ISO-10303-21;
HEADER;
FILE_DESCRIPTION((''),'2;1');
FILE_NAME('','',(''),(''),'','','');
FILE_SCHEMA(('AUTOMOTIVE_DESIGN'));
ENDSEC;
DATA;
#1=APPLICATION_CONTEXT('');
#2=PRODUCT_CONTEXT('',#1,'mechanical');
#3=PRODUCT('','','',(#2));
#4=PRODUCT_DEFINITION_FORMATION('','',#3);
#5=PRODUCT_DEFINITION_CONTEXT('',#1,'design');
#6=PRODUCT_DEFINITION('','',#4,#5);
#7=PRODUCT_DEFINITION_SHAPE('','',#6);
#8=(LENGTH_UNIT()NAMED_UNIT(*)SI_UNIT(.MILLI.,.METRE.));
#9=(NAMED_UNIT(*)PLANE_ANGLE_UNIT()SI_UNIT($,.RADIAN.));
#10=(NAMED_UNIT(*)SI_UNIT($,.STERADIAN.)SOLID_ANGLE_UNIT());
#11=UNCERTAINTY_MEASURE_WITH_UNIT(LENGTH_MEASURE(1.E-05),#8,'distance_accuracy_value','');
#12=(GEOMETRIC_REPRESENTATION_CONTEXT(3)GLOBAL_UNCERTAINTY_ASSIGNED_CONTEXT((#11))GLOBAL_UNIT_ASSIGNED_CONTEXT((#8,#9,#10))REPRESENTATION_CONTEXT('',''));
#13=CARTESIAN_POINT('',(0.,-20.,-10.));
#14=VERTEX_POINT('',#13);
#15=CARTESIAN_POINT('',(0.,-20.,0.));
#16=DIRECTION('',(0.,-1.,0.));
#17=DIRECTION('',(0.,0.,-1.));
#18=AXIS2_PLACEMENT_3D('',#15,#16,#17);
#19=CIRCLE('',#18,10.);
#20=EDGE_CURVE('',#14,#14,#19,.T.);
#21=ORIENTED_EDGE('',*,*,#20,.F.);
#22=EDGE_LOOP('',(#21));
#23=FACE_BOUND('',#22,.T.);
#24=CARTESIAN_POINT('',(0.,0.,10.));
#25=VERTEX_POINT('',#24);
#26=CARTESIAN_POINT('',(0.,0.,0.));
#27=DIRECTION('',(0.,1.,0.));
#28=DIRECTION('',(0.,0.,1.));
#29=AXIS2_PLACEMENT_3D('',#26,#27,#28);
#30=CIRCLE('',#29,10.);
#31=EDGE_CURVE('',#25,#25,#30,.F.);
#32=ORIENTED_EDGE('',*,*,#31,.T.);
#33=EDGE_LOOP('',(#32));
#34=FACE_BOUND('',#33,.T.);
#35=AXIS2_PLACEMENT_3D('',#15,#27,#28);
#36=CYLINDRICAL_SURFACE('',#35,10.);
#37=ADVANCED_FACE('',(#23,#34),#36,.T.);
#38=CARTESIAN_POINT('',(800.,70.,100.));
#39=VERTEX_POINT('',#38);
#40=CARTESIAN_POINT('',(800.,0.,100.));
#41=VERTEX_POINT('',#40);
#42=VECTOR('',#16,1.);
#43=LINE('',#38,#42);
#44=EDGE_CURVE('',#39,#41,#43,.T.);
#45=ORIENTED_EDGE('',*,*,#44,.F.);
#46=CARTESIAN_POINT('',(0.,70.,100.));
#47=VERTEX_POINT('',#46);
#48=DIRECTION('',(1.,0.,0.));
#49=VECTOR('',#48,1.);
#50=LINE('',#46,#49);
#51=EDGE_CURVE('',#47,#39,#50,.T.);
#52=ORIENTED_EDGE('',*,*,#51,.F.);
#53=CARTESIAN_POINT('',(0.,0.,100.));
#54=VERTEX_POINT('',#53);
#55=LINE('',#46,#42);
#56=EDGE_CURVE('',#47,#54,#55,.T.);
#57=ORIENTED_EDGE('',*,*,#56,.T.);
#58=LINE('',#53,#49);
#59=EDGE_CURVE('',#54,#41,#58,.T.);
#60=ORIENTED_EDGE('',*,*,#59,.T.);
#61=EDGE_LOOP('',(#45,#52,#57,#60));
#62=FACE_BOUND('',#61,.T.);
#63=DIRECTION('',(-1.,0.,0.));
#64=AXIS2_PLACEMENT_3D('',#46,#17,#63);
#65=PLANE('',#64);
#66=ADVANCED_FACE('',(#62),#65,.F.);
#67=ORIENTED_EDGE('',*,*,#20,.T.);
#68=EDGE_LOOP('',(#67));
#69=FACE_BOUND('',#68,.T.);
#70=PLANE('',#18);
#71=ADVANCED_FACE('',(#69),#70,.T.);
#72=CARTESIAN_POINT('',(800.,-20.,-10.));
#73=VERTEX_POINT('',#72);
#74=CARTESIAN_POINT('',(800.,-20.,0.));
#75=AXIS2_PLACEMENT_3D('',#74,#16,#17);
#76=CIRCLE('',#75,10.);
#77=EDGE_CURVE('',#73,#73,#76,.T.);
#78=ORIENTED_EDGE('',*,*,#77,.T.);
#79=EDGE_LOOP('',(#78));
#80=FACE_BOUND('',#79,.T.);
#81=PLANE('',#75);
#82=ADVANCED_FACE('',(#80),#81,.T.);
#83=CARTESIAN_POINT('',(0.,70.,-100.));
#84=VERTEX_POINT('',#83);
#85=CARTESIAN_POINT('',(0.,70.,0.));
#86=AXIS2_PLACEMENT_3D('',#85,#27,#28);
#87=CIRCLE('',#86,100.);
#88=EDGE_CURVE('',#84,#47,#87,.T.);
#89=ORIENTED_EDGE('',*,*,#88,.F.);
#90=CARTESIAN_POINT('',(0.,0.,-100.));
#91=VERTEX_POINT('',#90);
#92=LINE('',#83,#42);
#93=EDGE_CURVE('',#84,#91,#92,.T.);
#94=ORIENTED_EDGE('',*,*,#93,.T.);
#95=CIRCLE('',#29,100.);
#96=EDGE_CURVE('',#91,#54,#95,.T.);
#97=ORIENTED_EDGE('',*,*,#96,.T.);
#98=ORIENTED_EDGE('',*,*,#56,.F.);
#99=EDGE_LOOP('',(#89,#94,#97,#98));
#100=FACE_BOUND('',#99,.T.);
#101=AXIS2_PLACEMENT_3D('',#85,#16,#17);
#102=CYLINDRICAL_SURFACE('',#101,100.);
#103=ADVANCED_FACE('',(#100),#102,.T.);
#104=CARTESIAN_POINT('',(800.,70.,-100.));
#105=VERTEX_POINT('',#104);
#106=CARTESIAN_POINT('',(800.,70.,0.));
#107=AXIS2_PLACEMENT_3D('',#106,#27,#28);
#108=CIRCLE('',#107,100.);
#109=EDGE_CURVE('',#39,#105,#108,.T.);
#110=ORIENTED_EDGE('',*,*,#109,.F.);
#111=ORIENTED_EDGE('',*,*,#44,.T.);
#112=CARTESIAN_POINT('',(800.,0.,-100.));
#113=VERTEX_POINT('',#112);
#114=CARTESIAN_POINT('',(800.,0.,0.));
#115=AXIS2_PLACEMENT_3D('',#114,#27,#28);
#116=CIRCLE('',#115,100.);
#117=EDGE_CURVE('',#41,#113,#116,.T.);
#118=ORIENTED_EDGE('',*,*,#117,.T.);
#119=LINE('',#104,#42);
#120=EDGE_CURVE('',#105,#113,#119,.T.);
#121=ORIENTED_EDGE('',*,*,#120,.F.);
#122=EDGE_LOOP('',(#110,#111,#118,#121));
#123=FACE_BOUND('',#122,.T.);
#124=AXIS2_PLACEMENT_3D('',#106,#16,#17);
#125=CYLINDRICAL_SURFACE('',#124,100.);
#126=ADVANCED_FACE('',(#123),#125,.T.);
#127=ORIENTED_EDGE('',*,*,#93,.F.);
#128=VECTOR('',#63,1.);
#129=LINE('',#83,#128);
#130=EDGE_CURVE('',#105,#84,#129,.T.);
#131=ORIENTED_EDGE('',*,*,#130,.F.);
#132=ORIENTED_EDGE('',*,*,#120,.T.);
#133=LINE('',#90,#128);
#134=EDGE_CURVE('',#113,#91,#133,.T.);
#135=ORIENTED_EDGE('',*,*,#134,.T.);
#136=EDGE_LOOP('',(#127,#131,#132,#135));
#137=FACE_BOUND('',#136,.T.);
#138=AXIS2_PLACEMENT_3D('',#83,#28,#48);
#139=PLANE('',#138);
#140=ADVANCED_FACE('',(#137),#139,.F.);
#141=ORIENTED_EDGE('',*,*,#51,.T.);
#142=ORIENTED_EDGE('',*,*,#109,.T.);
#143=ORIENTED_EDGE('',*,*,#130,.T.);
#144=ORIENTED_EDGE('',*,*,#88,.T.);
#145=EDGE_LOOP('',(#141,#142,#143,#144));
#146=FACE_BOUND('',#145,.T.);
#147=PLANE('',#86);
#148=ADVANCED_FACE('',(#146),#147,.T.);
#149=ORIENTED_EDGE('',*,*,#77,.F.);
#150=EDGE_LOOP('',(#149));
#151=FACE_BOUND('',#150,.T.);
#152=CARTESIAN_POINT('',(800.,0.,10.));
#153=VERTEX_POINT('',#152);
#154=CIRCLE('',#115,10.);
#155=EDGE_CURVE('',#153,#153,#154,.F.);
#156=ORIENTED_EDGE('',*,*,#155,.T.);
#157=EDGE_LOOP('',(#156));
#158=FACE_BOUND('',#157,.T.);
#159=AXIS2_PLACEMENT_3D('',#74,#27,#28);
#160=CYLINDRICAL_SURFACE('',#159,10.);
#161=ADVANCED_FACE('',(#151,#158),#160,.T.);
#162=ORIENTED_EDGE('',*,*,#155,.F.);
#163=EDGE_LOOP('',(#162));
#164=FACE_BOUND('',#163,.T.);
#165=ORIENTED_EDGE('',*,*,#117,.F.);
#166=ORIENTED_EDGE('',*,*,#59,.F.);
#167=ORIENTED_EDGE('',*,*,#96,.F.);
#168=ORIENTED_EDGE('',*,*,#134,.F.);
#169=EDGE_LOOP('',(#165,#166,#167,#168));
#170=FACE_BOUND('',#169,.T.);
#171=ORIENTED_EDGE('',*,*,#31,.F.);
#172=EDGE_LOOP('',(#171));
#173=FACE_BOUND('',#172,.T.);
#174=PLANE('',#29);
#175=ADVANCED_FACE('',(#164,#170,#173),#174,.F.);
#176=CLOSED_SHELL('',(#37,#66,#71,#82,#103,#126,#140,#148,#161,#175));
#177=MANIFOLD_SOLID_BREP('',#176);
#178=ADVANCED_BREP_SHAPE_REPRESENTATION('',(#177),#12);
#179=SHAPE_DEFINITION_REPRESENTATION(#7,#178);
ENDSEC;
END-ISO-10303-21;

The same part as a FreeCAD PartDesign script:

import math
import FreeCAD as App
import Part
import Sketcher

V = App.Vector

doc = App.newDocument("Part")
body = doc.addObject("PartDesign::Body", "Body")

# Sketch on XZ plane
sketch1 = body.newObject("Sketcher::SketchObject", "Sketch")
sketch1.AttachmentSupport = (doc.getObject("XZ_Plane"), [""])
sketch1.MapMode = "FlatFace"
sketch1.addGeometry([
    Part.LineSegment(V(800, -100, 0), V(0, -100, 0)),
    Part.ArcOfCircle(Part.Circle(V(0, 0, 0), V(0, 0, 1), 100), math.radians(90), math.radians(270)),
    Part.LineSegment(V(0, 100, 0), V(800, 100, 0)),
    Part.ArcOfCircle(Part.Circle(V(800, 0, 0), V(0, 0, 1), 100), math.radians(-90), math.radians(90)),
], False)
sketch1.addConstraint([
    Sketcher.Constraint("Tangent", 0, 2, 1, 2),
    Sketcher.Constraint("Tangent", 1, 1, 2, 1),
    Sketcher.Constraint("Tangent", 2, 2, 3, 2),
    Sketcher.Constraint("Tangent", 3, 1, 0, 1),
    Sketcher.Constraint("Horizontal", 0),
    Sketcher.Constraint("Horizontal", 2),
    Sketcher.Constraint("Coincident", 1, 3, -1, 1),
    Sketcher.Constraint("Radius", 1, 100.0),
    Sketcher.Constraint("DistanceX", 0, 2, 0, 1, 800.0),
])
pad1 = body.newObject("PartDesign::Pad", "Pad")
pad1.Profile = sketch1
pad1.Length = 70
pad1.Reversed = True

# Sketch on XZ plane
sketch2 = body.newObject("Sketcher::SketchObject", "Sketch001")
sketch2.AttachmentSupport = (doc.getObject("XZ_Plane"), [""])
sketch2.MapMode = "FlatFace"
sketch2.addGeometry(Part.Circle(V(0, 0, 0), V(0, 0, 1), 10), False)
sketch2.addConstraint([
    Sketcher.Constraint("Coincident", 0, 3, -1, 1),
    Sketcher.Constraint("Diameter", 0, 20.0),
])
pad2 = body.newObject("PartDesign::Pad", "Pad001")
pad2.Profile = sketch2
pad2.Length = 20

# Sketch on XZ plane
sketch3 = body.newObject("Sketcher::SketchObject", "Sketch002")
sketch3.AttachmentSupport = (doc.getObject("XZ_Plane"), [""])
sketch3.MapMode = "FlatFace"
sketch3.addGeometry(Part.Circle(V(800, 0, 0), V(0, 0, 1), 10), False)
sketch3.addConstraint([
    Sketcher.Constraint("PointOnObject", 0, 3, -1),
    Sketcher.Constraint("Diameter", 0, 20.0),
    Sketcher.Constraint("DistanceX", -1, 1, 0, 3, 800.0),
])
pad3 = body.newObject("PartDesign::Pad", "Pad002")
pad3.Profile = sketch3
pad3.Length = 20

doc.recompute()
